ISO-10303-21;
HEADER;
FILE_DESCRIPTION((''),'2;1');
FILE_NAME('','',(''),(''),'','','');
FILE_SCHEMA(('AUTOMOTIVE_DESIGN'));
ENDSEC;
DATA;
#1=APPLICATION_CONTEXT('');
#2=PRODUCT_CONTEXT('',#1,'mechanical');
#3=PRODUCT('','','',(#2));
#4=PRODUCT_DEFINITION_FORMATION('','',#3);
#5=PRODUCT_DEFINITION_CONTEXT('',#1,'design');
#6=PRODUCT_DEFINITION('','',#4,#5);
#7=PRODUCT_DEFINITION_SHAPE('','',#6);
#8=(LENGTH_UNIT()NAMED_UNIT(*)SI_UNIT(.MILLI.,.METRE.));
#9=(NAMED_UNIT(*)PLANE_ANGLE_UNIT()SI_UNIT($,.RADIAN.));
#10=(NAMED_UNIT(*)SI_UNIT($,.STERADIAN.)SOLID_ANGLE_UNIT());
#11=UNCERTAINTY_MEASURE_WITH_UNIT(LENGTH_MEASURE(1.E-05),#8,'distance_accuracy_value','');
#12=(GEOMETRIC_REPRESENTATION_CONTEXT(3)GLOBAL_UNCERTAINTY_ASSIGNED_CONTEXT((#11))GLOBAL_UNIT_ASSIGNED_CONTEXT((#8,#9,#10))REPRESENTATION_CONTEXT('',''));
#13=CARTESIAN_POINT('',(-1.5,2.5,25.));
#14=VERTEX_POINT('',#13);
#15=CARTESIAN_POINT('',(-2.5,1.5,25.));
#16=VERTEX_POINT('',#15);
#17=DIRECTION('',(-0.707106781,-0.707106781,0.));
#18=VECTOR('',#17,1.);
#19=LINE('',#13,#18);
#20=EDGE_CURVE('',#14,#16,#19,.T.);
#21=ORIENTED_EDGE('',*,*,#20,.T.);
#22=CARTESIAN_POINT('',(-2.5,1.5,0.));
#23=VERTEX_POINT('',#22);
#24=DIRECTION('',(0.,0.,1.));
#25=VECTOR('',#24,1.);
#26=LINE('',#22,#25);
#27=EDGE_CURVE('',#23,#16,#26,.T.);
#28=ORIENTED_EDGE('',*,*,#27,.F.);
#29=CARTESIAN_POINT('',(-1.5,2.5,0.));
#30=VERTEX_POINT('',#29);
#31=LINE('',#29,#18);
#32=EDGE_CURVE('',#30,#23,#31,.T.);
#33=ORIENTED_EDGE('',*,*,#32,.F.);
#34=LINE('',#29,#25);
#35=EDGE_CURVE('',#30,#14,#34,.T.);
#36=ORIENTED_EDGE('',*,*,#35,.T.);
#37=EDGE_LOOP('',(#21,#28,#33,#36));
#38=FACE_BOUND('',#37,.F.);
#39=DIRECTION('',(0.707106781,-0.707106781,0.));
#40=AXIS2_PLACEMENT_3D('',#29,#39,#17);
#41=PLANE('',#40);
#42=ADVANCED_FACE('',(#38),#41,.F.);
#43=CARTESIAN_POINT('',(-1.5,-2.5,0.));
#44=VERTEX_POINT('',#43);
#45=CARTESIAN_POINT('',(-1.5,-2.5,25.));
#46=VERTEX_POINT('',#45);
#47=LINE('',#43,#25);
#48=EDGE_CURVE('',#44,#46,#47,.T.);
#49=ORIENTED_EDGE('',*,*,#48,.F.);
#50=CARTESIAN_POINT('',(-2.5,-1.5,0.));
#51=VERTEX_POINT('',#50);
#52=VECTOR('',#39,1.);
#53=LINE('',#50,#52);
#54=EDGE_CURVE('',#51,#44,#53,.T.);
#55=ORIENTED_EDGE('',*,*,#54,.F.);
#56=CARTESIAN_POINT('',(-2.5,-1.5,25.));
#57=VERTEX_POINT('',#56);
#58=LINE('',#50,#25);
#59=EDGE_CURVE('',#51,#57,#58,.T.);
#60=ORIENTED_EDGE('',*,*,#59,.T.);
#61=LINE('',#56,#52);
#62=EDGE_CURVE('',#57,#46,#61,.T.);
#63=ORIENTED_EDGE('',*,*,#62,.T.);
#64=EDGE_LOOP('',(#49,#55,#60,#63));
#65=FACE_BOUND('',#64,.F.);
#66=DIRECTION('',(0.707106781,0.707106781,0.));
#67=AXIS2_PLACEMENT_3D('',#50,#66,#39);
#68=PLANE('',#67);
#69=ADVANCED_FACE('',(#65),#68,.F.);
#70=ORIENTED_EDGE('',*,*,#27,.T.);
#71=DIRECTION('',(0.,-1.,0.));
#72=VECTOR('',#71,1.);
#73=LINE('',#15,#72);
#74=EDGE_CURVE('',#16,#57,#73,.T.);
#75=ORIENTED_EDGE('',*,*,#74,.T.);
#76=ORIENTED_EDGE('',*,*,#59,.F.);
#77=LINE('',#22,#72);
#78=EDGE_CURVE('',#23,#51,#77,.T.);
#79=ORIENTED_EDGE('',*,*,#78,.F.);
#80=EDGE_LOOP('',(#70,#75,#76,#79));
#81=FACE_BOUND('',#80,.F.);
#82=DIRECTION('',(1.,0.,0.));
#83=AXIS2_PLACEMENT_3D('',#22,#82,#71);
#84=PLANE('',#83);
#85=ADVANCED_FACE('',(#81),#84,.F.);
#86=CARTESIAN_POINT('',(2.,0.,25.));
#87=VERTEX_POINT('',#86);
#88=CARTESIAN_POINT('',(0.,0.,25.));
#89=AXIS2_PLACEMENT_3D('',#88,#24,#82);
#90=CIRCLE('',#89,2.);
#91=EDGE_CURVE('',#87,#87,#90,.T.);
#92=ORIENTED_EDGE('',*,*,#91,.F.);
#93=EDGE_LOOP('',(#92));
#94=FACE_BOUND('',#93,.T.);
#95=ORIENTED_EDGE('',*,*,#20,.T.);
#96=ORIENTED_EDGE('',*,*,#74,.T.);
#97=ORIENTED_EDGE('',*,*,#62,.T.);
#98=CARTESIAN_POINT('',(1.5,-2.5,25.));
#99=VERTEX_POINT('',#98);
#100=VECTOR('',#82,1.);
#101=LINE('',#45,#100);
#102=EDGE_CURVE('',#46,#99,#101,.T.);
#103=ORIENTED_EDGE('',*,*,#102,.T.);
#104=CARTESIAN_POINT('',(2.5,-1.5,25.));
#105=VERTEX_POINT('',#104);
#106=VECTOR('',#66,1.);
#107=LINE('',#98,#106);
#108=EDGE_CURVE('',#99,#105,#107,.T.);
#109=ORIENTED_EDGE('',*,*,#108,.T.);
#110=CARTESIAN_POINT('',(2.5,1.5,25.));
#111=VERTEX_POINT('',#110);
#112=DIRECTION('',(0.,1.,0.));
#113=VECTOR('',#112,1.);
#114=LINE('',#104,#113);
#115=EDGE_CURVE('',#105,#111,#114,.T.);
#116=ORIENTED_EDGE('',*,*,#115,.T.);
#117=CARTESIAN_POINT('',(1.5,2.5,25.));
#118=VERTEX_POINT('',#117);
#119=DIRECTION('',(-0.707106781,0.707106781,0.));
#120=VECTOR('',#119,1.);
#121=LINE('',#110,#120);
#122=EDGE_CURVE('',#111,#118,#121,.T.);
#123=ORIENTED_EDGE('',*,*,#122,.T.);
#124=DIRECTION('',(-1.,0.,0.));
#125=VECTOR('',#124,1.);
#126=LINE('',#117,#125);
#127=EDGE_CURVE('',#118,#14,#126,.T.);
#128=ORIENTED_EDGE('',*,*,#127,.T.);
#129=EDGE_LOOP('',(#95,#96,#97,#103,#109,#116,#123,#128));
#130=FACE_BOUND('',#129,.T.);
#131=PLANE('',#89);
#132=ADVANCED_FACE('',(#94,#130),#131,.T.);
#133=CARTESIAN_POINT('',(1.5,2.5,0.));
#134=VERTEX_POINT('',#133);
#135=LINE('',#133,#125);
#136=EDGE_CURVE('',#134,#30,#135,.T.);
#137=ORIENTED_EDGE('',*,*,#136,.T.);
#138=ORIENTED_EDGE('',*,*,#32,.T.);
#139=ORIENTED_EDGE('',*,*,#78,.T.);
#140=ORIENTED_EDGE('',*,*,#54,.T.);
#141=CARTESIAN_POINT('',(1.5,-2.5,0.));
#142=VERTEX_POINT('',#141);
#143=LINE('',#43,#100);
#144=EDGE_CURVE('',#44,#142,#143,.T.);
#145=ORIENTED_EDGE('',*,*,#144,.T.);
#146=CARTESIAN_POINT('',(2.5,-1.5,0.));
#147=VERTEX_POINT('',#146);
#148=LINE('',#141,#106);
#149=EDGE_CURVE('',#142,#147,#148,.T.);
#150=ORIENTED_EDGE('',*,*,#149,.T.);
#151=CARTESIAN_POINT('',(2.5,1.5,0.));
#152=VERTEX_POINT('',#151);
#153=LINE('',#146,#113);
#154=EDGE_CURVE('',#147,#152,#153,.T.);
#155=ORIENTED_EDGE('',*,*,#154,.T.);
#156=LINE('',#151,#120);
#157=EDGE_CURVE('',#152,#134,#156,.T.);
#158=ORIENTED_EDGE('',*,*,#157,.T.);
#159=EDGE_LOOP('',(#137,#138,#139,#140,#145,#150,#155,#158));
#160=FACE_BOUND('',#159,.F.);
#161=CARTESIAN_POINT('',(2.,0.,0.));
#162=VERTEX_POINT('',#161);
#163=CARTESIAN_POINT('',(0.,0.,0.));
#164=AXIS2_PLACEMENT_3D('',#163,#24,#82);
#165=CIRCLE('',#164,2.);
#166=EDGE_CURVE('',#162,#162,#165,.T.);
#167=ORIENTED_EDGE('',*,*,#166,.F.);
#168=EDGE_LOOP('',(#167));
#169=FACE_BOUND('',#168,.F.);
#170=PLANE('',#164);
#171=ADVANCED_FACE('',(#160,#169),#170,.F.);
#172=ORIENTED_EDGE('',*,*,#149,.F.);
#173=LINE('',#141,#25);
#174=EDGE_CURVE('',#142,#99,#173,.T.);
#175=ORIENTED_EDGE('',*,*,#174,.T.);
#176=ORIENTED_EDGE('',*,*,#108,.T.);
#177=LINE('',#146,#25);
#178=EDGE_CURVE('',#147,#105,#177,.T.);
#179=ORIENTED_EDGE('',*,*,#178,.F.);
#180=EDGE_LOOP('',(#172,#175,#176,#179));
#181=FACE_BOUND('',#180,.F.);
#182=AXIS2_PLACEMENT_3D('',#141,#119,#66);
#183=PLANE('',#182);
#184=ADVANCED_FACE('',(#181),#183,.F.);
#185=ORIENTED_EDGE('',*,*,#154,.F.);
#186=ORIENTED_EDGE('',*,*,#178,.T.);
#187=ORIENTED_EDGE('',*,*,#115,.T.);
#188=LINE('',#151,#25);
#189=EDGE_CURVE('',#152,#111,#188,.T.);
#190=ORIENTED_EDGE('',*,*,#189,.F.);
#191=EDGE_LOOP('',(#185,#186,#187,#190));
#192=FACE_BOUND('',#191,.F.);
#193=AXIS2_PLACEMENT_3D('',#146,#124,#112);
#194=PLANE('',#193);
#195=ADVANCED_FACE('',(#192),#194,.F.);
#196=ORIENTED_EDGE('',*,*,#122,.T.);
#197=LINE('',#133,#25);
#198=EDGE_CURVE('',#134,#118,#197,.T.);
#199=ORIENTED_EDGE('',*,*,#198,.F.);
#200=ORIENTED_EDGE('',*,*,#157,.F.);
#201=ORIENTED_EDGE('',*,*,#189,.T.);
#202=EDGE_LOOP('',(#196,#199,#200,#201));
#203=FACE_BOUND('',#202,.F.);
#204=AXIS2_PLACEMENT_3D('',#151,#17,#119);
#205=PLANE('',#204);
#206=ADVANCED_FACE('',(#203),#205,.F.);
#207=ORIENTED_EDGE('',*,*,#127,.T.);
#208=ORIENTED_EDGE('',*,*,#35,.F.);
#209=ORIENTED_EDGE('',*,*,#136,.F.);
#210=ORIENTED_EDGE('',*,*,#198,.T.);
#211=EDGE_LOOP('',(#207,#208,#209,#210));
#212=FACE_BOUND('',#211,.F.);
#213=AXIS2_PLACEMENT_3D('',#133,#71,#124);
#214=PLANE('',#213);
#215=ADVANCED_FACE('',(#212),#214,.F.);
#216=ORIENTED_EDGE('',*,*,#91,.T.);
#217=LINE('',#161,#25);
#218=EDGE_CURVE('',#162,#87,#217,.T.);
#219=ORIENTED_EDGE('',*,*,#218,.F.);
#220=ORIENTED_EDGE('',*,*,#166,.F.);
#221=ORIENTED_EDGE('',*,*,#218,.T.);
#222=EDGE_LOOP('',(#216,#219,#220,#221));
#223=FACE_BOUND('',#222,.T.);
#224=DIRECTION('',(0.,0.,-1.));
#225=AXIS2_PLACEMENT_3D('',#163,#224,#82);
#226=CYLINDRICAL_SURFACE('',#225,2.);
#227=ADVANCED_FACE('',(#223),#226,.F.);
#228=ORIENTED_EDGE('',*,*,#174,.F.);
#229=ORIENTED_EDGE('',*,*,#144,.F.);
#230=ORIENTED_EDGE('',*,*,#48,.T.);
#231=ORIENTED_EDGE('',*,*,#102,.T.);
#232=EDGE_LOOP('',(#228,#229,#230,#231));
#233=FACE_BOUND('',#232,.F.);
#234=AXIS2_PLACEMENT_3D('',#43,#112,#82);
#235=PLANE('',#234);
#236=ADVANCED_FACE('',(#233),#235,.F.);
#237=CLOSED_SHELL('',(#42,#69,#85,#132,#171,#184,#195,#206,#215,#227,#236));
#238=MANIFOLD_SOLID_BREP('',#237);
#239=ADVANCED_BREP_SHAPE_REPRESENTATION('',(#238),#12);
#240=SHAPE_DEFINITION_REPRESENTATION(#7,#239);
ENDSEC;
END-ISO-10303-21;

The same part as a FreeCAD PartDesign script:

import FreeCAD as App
import Part
import Sketcher

V = App.Vector

doc = App.newDocument("Part")
body = doc.addObject("PartDesign::Body", "Body")

sketch1 = body.newObject("Sketcher::SketchObject", "Sketch")
sketch1.AttachmentSupport = (doc.getObject("XY_Plane"), [""])
sketch1.MapMode = "FlatFace"
sketch1.addGeometry([
    Part.LineSegment(V(1.5, 2.5, 0), V(-1.5, 2.5, 0)),
    Part.LineSegment(V(-1.5, 2.5, 0), V(-2.5, 1.5, 0)),
    Part.LineSegment(V(-2.5, 1.5, 0), V(-2.5, -1.5, 0)),
    Part.LineSegment(V(-2.5, -1.5, 0), V(-1.5, -2.5, 0)),
    Part.LineSegment(V(-1.5, -2.5, 0), V(1.5, -2.5, 0)),
    Part.LineSegment(V(1.5, -2.5, 0), V(2.5, -1.5, 0)),
    Part.LineSegment(V(2.5, -1.5, 0), V(2.5, 1.5, 0)),
    Part.LineSegment(V(2.5, 1.5, 0), V(1.5, 2.5, 0)),
    Part.Circle(V(0, 0, 0), V(0, 0, 1), 2),
], False)
sketch1.addConstraint([
    Sketcher.Constraint("Coincident", 0, 2, 1, 1),
    Sketcher.Constraint("Coincident", 1, 2, 2, 1),
    Sketcher.Constraint("Coincident", 2, 2, 3, 1),
    Sketcher.Constraint("Coincident", 3, 2, 4, 1),
    Sketcher.Constraint("Coincident", 4, 2, 5, 1),
    Sketcher.Constraint("Coincident", 5, 2, 6, 1),
    Sketcher.Constraint("Coincident", 6, 2, 7, 1),
    Sketcher.Constraint("Coincident", 7, 2, 0, 1),
    Sketcher.Constraint("Horizontal", 0),
    Sketcher.Constraint("Vertical", 2),
    Sketcher.Constraint("Horizontal", 4),
    Sketcher.Constraint("Vertical", 6),
    Sketcher.Constraint("Coincident", 8, 3, -1, 1),
    Sketcher.Constraint("Symmetric", 0, 2, 4, 2, -1, 1),
    Sketcher.Constraint("Symmetric", 1, 2, 5, 2, -1, 1),
    Sketcher.Constraint("Perpendicular", 1, 3),
    Sketcher.Constraint("Perpendicular", 5, 7),
    Sketcher.Constraint("Horizontal", 2, 2, 5, 2),
    Sketcher.Constraint("Horizontal", 1, 2, 6, 2),
    Sketcher.Constraint("Vertical", 0, 2, 3, 2),
    Sketcher.Constraint("Equal", 4, 2),
    Sketcher.Constraint("Diameter", 8, 4.0),
    Sketcher.Constraint("DistanceX", 0, 2, 0, 1, 3.0),
    Sketcher.Constraint("DistanceX", 1, 2, 0, 2, 1.0),
])
pad1 = body.newObject("PartDesign::Pad", "Pad")
pad1.Profile = sketch1
pad1.Length = 25

doc.recompute()
